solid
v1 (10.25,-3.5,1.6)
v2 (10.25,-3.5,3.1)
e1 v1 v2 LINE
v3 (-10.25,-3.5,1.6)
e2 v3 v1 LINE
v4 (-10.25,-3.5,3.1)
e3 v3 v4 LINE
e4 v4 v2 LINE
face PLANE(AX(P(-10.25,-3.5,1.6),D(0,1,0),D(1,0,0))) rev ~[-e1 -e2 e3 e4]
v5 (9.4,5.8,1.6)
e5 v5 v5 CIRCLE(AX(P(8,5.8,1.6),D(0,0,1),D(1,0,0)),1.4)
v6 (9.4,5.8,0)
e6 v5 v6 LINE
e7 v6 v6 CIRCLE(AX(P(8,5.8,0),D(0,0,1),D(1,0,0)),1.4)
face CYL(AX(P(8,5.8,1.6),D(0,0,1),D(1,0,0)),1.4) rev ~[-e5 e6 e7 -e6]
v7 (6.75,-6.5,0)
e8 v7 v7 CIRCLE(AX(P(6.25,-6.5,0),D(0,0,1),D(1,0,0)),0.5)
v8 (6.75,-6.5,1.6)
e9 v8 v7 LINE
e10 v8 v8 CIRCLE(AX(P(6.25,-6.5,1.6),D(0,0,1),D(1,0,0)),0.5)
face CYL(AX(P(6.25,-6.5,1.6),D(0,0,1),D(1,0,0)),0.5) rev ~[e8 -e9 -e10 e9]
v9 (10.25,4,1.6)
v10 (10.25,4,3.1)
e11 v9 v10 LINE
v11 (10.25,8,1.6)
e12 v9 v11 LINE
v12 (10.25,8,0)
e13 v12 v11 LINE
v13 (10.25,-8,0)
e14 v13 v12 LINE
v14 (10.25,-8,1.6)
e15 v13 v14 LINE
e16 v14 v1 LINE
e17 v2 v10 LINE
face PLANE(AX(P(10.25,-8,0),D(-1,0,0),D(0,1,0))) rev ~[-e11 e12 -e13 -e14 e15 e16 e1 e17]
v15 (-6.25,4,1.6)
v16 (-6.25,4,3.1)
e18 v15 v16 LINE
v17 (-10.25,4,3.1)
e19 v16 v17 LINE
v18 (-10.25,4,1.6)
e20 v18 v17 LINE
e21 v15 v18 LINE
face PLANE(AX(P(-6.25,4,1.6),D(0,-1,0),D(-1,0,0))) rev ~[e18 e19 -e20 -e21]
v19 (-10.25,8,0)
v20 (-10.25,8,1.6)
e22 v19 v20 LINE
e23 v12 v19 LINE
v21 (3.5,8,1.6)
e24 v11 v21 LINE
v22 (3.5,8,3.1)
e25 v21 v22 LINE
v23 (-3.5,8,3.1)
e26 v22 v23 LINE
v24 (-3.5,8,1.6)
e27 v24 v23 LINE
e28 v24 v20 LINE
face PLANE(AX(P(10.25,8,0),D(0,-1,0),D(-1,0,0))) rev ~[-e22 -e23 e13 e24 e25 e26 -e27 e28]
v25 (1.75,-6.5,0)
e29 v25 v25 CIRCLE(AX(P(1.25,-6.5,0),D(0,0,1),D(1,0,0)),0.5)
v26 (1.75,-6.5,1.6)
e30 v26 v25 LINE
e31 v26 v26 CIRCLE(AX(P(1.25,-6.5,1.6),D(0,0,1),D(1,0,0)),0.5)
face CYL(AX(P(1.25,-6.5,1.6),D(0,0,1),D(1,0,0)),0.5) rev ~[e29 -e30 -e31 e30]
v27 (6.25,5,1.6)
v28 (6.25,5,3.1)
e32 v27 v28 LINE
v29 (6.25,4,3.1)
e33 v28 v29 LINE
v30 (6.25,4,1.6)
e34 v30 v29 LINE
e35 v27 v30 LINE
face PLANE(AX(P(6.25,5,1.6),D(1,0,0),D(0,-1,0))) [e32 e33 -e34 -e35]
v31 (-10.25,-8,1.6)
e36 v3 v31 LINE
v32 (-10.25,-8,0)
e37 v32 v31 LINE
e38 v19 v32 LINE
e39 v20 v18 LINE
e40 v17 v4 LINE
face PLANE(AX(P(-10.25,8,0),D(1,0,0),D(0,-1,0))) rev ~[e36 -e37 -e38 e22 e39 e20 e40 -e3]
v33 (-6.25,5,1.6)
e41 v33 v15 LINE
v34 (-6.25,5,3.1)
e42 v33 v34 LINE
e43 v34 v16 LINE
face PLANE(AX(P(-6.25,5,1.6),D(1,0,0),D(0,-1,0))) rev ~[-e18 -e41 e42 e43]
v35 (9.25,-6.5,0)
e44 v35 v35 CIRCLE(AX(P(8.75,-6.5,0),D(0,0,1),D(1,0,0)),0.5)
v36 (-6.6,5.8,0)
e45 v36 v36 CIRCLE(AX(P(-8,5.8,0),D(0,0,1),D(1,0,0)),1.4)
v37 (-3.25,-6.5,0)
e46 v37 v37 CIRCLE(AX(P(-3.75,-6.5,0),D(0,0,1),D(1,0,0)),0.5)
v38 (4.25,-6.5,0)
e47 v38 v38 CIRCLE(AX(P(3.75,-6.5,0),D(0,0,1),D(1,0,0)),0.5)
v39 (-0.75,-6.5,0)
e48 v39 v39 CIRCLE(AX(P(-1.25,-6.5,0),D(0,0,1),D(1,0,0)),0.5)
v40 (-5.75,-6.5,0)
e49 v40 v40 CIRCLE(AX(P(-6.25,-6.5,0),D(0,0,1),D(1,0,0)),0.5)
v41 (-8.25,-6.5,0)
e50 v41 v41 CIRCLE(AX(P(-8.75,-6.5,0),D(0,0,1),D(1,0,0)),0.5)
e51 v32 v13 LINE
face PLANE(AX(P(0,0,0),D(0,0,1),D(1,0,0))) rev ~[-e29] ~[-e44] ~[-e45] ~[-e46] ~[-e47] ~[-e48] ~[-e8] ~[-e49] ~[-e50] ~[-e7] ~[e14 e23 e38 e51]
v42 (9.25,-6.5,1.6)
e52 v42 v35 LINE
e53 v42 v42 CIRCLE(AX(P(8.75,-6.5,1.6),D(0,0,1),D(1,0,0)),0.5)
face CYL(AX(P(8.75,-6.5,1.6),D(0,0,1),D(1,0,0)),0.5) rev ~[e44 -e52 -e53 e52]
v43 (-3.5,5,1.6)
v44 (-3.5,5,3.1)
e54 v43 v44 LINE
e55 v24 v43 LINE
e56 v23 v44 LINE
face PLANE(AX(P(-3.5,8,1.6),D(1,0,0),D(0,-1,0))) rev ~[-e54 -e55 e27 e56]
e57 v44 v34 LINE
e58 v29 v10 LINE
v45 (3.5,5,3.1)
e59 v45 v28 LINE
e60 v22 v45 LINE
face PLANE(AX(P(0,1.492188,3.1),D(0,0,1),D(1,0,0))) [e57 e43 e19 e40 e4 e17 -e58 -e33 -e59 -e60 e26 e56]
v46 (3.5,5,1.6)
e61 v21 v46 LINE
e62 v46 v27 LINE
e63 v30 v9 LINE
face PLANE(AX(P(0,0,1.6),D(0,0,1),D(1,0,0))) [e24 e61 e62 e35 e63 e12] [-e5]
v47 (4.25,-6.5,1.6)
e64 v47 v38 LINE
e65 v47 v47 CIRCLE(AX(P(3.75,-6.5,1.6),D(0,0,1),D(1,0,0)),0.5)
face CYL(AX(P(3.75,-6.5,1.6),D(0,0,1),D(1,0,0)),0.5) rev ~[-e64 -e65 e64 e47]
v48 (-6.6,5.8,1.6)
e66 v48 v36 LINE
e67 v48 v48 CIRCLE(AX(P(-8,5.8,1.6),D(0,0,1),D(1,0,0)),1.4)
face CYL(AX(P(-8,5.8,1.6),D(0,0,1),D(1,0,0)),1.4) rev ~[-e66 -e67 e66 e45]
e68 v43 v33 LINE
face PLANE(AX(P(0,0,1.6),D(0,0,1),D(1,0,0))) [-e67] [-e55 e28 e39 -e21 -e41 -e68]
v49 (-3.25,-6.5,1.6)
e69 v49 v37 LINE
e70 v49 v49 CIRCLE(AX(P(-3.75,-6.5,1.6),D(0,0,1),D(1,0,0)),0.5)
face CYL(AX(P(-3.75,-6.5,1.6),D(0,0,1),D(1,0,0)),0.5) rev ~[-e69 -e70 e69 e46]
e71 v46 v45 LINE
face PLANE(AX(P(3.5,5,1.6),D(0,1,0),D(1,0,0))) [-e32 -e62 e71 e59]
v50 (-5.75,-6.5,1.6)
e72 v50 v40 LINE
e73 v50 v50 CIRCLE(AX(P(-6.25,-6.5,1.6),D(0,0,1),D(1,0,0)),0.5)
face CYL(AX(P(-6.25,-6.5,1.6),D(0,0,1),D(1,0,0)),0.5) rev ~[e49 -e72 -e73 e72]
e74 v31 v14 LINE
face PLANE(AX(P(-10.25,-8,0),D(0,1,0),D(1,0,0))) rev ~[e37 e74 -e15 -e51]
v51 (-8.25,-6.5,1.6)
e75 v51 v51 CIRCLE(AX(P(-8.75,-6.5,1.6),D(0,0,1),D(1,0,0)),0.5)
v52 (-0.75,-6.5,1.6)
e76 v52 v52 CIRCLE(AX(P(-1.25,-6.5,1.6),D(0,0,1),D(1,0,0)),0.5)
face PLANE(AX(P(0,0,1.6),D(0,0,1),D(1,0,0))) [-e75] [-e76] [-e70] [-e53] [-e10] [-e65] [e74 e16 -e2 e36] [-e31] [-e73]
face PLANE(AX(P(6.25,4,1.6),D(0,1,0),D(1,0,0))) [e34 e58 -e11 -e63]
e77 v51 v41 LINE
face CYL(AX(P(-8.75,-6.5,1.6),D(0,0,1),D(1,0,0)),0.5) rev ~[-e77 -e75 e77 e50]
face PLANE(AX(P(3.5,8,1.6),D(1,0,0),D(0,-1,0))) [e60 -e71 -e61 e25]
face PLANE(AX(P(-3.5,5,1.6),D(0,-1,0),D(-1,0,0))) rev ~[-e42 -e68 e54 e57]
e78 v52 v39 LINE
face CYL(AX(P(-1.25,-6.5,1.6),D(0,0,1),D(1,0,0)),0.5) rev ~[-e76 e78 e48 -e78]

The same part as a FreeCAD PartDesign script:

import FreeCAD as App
import Part
import Sketcher


def add_polygon(sketch, points):
    """Adds a closed chain of lines whose ends are joined by coincident constraints."""
    first, n = sketch.GeometryCount, len(points)
    for a, b in zip(points, points[1:] + points[:1]):
        sketch.addGeometry(Part.LineSegment(App.Vector(*a, 0), App.Vector(*b, 0)), False)
    for i in range(n):
        sketch.addConstraint(Sketcher.Constraint("Coincident", first + i, 2, first + (i + 1) % n, 1))

doc = App.newDocument("Part")
body = doc.addObject("PartDesign::Body", "Body")

# Sketch on XY plane
sketch1 = doc.addObject("Sketcher::SketchObject", "Sketch")
body.addObject(sketch1)
sketch1.AttachmentSupport = (doc.XY_Plane, [""])
sketch1.MapMode = "FlatFace"
add_polygon(sketch1, [(-10, 8), (-10, -8), (10, -8), (10, 8)])  # lines 0-3
sketch1.addConstraint(Sketcher.Constraint("Vertical", 0))
sketch1.addConstraint(Sketcher.Constraint("Horizontal", 1))
sketch1.addConstraint(Sketcher.Constraint("Vertical", 2))
sketch1.addConstraint(Sketcher.Constraint("Horizontal", 3))
sketch1.addConstraint(Sketcher.Constraint("Symmetric", 0, 2, 2, 2, -1, 1))
sketch1.addConstraint(Sketcher.Constraint("DistanceY", 0, 2, 0, 1, 16.0))
sketch1.addConstraint(Sketcher.Constraint("DistanceX", 0, 2, -1, 1, 10.25))
pad1 = doc.addObject("PartDesign::Pad", "Pad")
body.addObject(pad1)
pad1.Profile = sketch1
pad1.Length = 1.6

# Sketch on XY plane
sketch2 = doc.addObject("Sketcher::SketchObject", "Sketch001")
body.addObject(sketch2)
sketch2.AttachmentSupport = (doc.XY_Plane, [""])
sketch2.MapMode = "FlatFace"
sketch2.AttachmentOffset = App.Placement(App.Vector(0, 0, 1.6), App.Rotation())
sketch2.addGeometry(Part.Circle(App.Vector(-8, 5.8, 0), App.Vector(0, 0, 1), 1.4), False)
sketch2.addGeometry(Part.Circle(App.Vector(8, 5.8, 0), App.Vector(0, 0, 1), 1.4), False)
sketch2.addConstraint(Sketcher.Constraint("Equal", 0, 1))
sketch2.addConstraint(Sketcher.Constraint("Symmetric", 0, 3, 1, 3, -2))
sketch2.addConstraint(Sketcher.Constraint("Diameter", 0, 2.8))
sketch2.addConstraint(Sketcher.Constraint("DistanceX", 0, 3, -1, 1, 8.0))
sketch2.addConstraint(Sketcher.Constraint("DistanceY", -1, 1, 0, 3, 5.8))
pocket1 = doc.addObject("PartDesign::Pocket", "Pocket")
body.addObject(pocket1)
pocket1.Profile = sketch2
pocket1.Type = "ThroughAll"

# Sketch on XY plane
sketch3 = doc.addObject("Sketcher::SketchObject", "Sketch002")
body.addObject(sketch3)
sketch3.AttachmentSupport = (doc.XY_Plane, [""])
sketch3.MapMode = "FlatFace"
sketch3.AttachmentOffset = App.Placement(App.Vector(0, 0, 1.6), App.Rotation())
add_polygon(sketch3, [(-10.2, 4), (-10.2, -3.5), (10.2, -3.5), (10.2, 4), (6.2, 4), (6.2, 5), (3.5, 5), (3.5, 8), (-3.5, 8), (-3.5, 5), (-6.2, 5), (-6.2, 4)])  # lines 0-11
sketch3.addConstraint(Sketcher.Constraint("Vertical", 0))
sketch3.addConstraint(Sketcher.Constraint("Horizontal", 1))
sketch3.addConstraint(Sketcher.Constraint("Vertical", 2))
sketch3.addConstraint(Sketcher.Constraint("Horizontal", 3))
sketch3.addConstraint(Sketcher.Constraint("Vertical", 4))
sketch3.addConstraint(Sketcher.Constraint("Horizontal", 5))
sketch3.addConstraint(Sketcher.Constraint("Vertical", 6))
sketch3.addConstraint(Sketcher.Constraint("Horizontal", 7))
sketch3.addConstraint(Sketcher.Constraint("Vertical", 8))
sketch3.addConstraint(Sketcher.Constraint("Horizontal", 9))
sketch3.addConstraint(Sketcher.Constraint("Vertical", 10))
sketch3.addConstraint(Sketcher.Constraint("Horizontal", 11))
sketch3.addConstraint(Sketcher.Constraint("Symmetric", 5, 2, 8, 2, -2))
sketch3.addConstraint(Sketcher.Constraint("Symmetric", 3, 2, 10, 2, -2))
sketch3.addConstraint(Sketcher.Constraint("Equal", 3, 11))
sketch3.addConstraint(Sketcher.Constraint("DistanceY", 0, 2, -1, 1, 3.5))
sketch3.addConstraint(Sketcher.Constraint("DistanceX", -1, 1, 5, 2, 3.5))
sketch3.addConstraint(Sketcher.Constraint("DistanceX", 3, 2, 3, 1, 4.0))
sketch3.addConstraint(Sketcher.Constraint("DistanceY", 4, 1, 4, 2, 1.0))
sketch3.addConstraint(Sketcher.Constraint("DistanceY", 6, 1, 6, 2, 3.0))
sketch3.addConstraint(Sketcher.Constraint("DistanceX", 0, 2, -1, 1, 10.25))
sketch3.addConstraint(Sketcher.Constraint("DistanceY", 0, 2, 0, 1, 7.5))
pad2 = doc.addObject("PartDesign::Pad", "Pad001")
body.addObject(pad2)
pad2.Profile = sketch3
pad2.Length = 1.5

# Sketch on XY plane
sketch4 = doc.addObject("Sketcher::SketchObject", "Sketch003")
body.addObject(sketch4)
sketch4.AttachmentSupport = (doc.XY_Plane, [""])
sketch4.MapMode = "FlatFace"
sketch4.AttachmentOffset = App.Placement(App.Vector(0, 0, 1.6), App.Rotation())
sketch4.addGeometry(Part.Circle(App.Vector(-8.8, -6.5, 0), App.Vector(0, 0, 1), 0.5), False)
sketch4.addGeometry(Part.Circle(App.Vector(-6.2, -6.5, 0), App.Vector(0, 0, 1), 0.5), False)
sketch4.addGeometry(Part.Circle(App.Vector(-3.8, -6.5, 0), App.Vector(0, 0, 1), 0.5), False)
sketch4.addGeometry(Part.Circle(App.Vector(-1.2, -6.5, 0), App.Vector(0, 0, 1), 0.5), False)
sketch4.addGeometry(Part.Circle(App.Vector(1.2, -6.5, 0), App.Vector(0, 0, 1), 0.5), False)
sketch4.addGeometry(Part.Circle(App.Vector(3.8, -6.5, 0), App.Vector(0, 0, 1), 0.5), False)
sketch4.addGeometry(Part.Circle(App.Vector(6.2, -6.5, 0), App.Vector(0, 0, 1), 0.5), False)
sketch4.addGeometry(Part.Circle(App.Vector(8.8, -6.5, 0), App.Vector(0, 0, 1), 0.5), False)
sketch4.addConstraint(Sketcher.Constraint("Equal", 0, 1))
sketch4.addConstraint(Sketcher.Constraint("Equal", 1, 2))
sketch4.addConstraint(Sketcher.Constraint("Equal", 2, 3))
sketch4.addConstraint(Sketcher.Constraint("Equal", 3, 4))
sketch4.addConstraint(Sketcher.Constraint("Equal", 4, 5))
sketch4.addConstraint(Sketcher.Constraint("Equal", 5, 6))
sketch4.addConstraint(Sketcher.Constraint("Equal", 6, 7))
sketch4.addConstraint(Sketcher.Constraint("Symmetric", 3, 3, 4, 3, -2))
sketch4.addConstraint(Sketcher.Constraint("Symmetric", 2, 3, 5, 3, -2))
sketch4.addConstraint(Sketcher.Constraint("Symmetric", 1, 3, 6, 3, -2))
sketch4.addConstraint(Sketcher.Constraint("Symmetric", 0, 3, 7, 3, -2))
sketch4.addConstraint(Sketcher.Constraint("Horizontal", 0, 3, 1, 3))
sketch4.addConstraint(Sketcher.Constraint("Horizontal", 1, 3, 2, 3))
sketch4.addConstraint(Sketcher.Constraint("Horizontal", 2, 3, 3, 3))
sketch4.addConstraint(Sketcher.Constraint("Diameter", 0, 1.0))
sketch4.addConstraint(Sketcher.Constraint("DistanceX", 0, 3, -1, 1, 8.75))
sketch4.addConstraint(Sketcher.Constraint("DistanceX", 0, 3, 2, 3, 5.0))
sketch4.addConstraint(Sketcher.Constraint("DistanceX", 1, 3, 3, 3, 5.0))
sketch4.addConstraint(Sketcher.Constraint("DistanceX", 2, 3, 4, 3, 5.0))
sketch4.addConstraint(Sketcher.Constraint("DistanceY", 0, 3, -1, 1, 6.5))
pocket2 = doc.addObject("PartDesign::Pocket", "Pocket001")
body.addObject(pocket2)
pocket2.Profile = sketch4
pocket2.Type = "ThroughAll"

doc.recompute()
